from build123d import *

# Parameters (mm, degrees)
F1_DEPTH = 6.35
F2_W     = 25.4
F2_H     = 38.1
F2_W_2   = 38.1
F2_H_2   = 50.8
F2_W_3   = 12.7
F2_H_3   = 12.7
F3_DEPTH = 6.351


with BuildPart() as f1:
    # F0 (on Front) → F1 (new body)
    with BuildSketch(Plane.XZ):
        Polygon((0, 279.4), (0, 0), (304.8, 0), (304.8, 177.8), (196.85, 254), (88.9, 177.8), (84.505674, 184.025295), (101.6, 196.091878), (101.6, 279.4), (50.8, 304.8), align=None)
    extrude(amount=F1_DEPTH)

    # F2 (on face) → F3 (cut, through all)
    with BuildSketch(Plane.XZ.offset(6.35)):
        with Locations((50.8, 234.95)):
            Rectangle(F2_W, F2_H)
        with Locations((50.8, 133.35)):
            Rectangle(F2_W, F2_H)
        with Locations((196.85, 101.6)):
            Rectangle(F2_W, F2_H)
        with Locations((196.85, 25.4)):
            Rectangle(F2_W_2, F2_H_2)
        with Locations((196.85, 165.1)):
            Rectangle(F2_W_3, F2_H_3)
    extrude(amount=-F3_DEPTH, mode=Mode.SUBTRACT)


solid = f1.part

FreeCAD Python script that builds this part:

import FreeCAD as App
import Part
import Sketcher
Q = App.Units.Quantity


def add_polygon(sketch, points):
    """Adds a closed chain of lines whose ends are joined by coincident constraints."""
    first, n = sketch.GeometryCount, len(points)
    for a, b in zip(points, points[1:] + points[:1]):
        sketch.addGeometry(Part.LineSegment(App.Vector(*a, 0), App.Vector(*b, 0)), False)
    for i in range(n):
        sketch.addConstraint(Sketcher.Constraint("Coincident", first + i, 2, first + (i + 1) % n, 1))

doc = App.newDocument("Part")
params = doc.addObject("Spreadsheet::Sheet", "Params")
for row, (alias, value) in enumerate([
    ("sketch1_width", "12 in"),
    ("sketch1_height", "11 in"),
    ("sketch1_height2", "7 in"),
    ("sketch1_length", "0.3 in"),
    ("pad1_length", "0.25 in"),
    ("sketch2_width", "1 in"),
    ("sketch2_height", "2 in"),
    ("sketch2_width2", "1.5 in"),
    ("sketch2_width3", "0.5 in"),
], start=1):
    params.set(f"A{row}", alias)
    params.set(f"B{row}", "=" + value)
    params.setAlias(f"B{row}", alias)

body = doc.addObject("PartDesign::Body", "Body")

# Sketch on XZ plane
sketch1 = doc.addObject("Sketcher::SketchObject", "Sketch")
body.addObject(sketch1)
sketch1.AttachmentSupport = (doc.XZ_Plane, [""])
sketch1.MapMode = "FlatFace"
add_polygon(sketch1, [(0, 279), (0, 0), (305, 0), (305, 178), (197, 254), (89, 178), (85, 184), (102, 196), (102, 279), (51, 305)])  # lines 0-9
sketch1.addConstraint(Sketcher.Constraint("Vertical", 0))
sketch1.addConstraint(Sketcher.Constraint("Horizontal", 1))
sketch1.addConstraint(Sketcher.Constraint("Vertical", 2))
sketch1.addConstraint(Sketcher.Constraint("Vertical", 7))
sketch1.addConstraint(Sketcher.Constraint("Coincident", 0, 2, -1, 1))
sketch1.addConstraint(Sketcher.Constraint("Perpendicular", 4, 5))
sketch1.addConstraint(Sketcher.Constraint("Perpendicular", 5, 6))
sketch1.addConstraint(Sketcher.Constraint("Horizontal", 2, 2, 4, 2))
sketch1.addConstraint(Sketcher.Constraint("Horizontal", 7, 2, 9, 2))
sketch1.addConstraint(Sketcher.Constraint("Equal", 3, 4))
sketch1.addConstraint(Sketcher.Constraint("Equal", 8, 9))
sketch1.addConstraint(Sketcher.Constraint("DistanceX", 1, 1, 1, 2, Q("12 in")))
sketch1.addConstraint(Sketcher.Constraint("DistanceY", 0, 2, 0, 1, Q("11 in")))
sketch1.addConstraint(Sketcher.Constraint("DistanceY", 2, 1, 2, 2, Q("7 in")))
sketch1.addConstraint(Sketcher.Constraint("DistanceY", -1, 1, 3, 2, Q("10 in")))
sketch1.addConstraint(Sketcher.Constraint("DistanceX", -1, 1, 6, 2, Q("4 in")))
sketch1.addConstraint(Sketcher.Constraint("DistanceY", -1, 1, 8, 2, Q("12 in")))
sketch1.addConstraint(Sketcher.Constraint("Distance", 5, Q("0.3 in")))
sketch1.addConstraint(Sketcher.Constraint("DistanceX", -1, 1, 4, 2, Q("3.5 in")))
sketch1.setExpression("Constraints[21]", "Params.sketch1_width")
sketch1.setExpression("Constraints[22]", "Params.sketch1_height")
sketch1.setExpression("Constraints[23]", "Params.sketch1_height2")
sketch1.setExpression("Constraints[27]", "Params.sketch1_length")
pad1 = doc.addObject("PartDesign::Pad", "Pad")
body.addObject(pad1)
pad1.Profile = sketch1
pad1.setExpression("Length", "Params.pad1_length")

# Sketch on XZ plane
sketch2 = doc.addObject("Sketcher::SketchObject", "Sketch001")
body.addObject(sketch2)
sketch2.AttachmentSupport = (doc.XZ_Plane, [""])
sketch2.MapMode = "FlatFace"
sketch2.AttachmentOffset = App.Placement(App.Vector(0, 0, 0.25 * 25.4), App.Rotation())
add_polygon(sketch2, [(38, 254), (38, 216), (64, 216), (64, 254)])  # lines 0-3
add_polygon(sketch2, [(38, 152), (38, 114), (64, 114), (64, 152)])  # lines 4-7
add_polygon(sketch2, [(184, 121), (184, 83), (210, 83), (210, 121)])  # lines 8-11
add_polygon(sketch2, [(178, 51), (178, 0), (216, 0), (216, 51)])  # lines 12-15
add_polygon(sketch2, [(190, 171), (190, 159), (203, 159), (203, 171)])  # lines 16-19
sketch2.addConstraint(Sketcher.Constraint("Vertical", 0))
sketch2.addConstraint(Sketcher.Constraint("Horizontal", 1))
sketch2.addConstraint(Sketcher.Constraint("Vertical", 2))
sketch2.addConstraint(Sketcher.Constraint("Horizontal", 3))
sketch2.addConstraint(Sketcher.Constraint("Vertical", 4))
sketch2.addConstraint(Sketcher.Constraint("Horizontal", 5))
sketch2.addConstraint(Sketcher.Constraint("Vertical", 6))
sketch2.addConstraint(Sketcher.Constraint("Horizontal", 7))
sketch2.addConstraint(Sketcher.Constraint("Vertical", 8))
sketch2.addConstraint(Sketcher.Constraint("Horizontal", 9))
sketch2.addConstraint(Sketcher.Constraint("Vertical", 10))
sketch2.addConstraint(Sketcher.Constraint("Horizontal", 11))
sketch2.addConstraint(Sketcher.Constraint("Vertical", 12))
sketch2.addConstraint(Sketcher.Constraint("Horizontal", 13))
sketch2.addConstraint(Sketcher.Constraint("Vertical", 14))
sketch2.addConstraint(Sketcher.Constraint("Horizontal", 15))
sketch2.addConstraint(Sketcher.Constraint("Vertical", 16))
sketch2.addConstraint(Sketcher.Constraint("Horizontal", 17))
sketch2.addConstraint(Sketcher.Constraint("Vertical", 18))
sketch2.addConstraint(Sketcher.Constraint("Horizontal", 19))
sketch2.addConstraint(Sketcher.Constraint("PointOnObject", 12, 2, -1))
sketch2.addConstraint(Sketcher.Constraint("Vertical", 3, 2, 4, 2))
sketch2.addConstraint(Sketcher.Constraint("Vertical", 2, 2, 5, 2))
sketch2.addConstraint(Sketcher.Constraint("Equal", 7, 9))
sketch2.addConstraint(Sketcher.Constraint("Equal", 15, 0))
sketch2.addConstraint(Sketcher.Constraint("Equal", 2, 4))
sketch2.addConstraint(Sketcher.Constraint("Equal", 6, 8))
sketch2.addConstraint(Sketcher.Constraint("Equal", 19, 16))
sketch2.addConstraint(Sketcher.Constraint("DistanceX", 1, 1, 1, 2, Q("1 in")))
sketch2.addConstraint(Sketcher.Constraint("DistanceY", 12, 2, 12, 1, Q("2 in")))
sketch2.addConstraint(Sketcher.Constraint("DistanceX", 13, 1, 13, 2, Q("1.5 in")))
sketch2.addConstraint(Sketcher.Constraint("DistanceX", 17, 1, 17, 2, Q("0.5 in")))
sketch2.addConstraint(Sketcher.Constraint("DistanceY", -1, 1, 2, 2, Q("10 in")))
sketch2.addConstraint(Sketcher.Constraint("DistanceY", -1, 1, 6, 2, Q("6 in")))
sketch2.addConstraint(Sketcher.Constraint("DistanceX", -1, 1, 12, 2, Q("7 in")))
sketch2.addConstraint(Sketcher.Constraint("DistanceX", -1, 1, 17, 2, Q("8 in")))
sketch2.addConstraint(Sketcher.Constraint("DistanceY", 8, 2, 16, 2, Q("3 in")))
sketch2.addConstraint(Sketcher.Constraint("DistanceX", -1, 1, 0, 2, Q("1.5 in")))
sketch2.addConstraint(Sketcher.Constraint("DistanceX", -1, 1, 8, 2, Q("7.25 in")))
sketch2.addConstraint(Sketcher.Constraint("DistanceY", -1, 1, 8, 2, Q("3.25 in")))
sketch2.setExpression("Constraints[48]", "Params.sketch2_width")
sketch2.setExpression("Constraints[49]", "Params.sketch2_height")
sketch2.setExpression("Constraints[50]", "Params.sketch2_width2")
sketch2.setExpression("Constraints[51]", "Params.sketch2_width3")
pocket1 = doc.addObject("PartDesign::Pocket", "Pocket")
body.addObject(pocket1)
pocket1.Profile = sketch2
pocket1.Type = "ThroughAll"

doc.recompute()
